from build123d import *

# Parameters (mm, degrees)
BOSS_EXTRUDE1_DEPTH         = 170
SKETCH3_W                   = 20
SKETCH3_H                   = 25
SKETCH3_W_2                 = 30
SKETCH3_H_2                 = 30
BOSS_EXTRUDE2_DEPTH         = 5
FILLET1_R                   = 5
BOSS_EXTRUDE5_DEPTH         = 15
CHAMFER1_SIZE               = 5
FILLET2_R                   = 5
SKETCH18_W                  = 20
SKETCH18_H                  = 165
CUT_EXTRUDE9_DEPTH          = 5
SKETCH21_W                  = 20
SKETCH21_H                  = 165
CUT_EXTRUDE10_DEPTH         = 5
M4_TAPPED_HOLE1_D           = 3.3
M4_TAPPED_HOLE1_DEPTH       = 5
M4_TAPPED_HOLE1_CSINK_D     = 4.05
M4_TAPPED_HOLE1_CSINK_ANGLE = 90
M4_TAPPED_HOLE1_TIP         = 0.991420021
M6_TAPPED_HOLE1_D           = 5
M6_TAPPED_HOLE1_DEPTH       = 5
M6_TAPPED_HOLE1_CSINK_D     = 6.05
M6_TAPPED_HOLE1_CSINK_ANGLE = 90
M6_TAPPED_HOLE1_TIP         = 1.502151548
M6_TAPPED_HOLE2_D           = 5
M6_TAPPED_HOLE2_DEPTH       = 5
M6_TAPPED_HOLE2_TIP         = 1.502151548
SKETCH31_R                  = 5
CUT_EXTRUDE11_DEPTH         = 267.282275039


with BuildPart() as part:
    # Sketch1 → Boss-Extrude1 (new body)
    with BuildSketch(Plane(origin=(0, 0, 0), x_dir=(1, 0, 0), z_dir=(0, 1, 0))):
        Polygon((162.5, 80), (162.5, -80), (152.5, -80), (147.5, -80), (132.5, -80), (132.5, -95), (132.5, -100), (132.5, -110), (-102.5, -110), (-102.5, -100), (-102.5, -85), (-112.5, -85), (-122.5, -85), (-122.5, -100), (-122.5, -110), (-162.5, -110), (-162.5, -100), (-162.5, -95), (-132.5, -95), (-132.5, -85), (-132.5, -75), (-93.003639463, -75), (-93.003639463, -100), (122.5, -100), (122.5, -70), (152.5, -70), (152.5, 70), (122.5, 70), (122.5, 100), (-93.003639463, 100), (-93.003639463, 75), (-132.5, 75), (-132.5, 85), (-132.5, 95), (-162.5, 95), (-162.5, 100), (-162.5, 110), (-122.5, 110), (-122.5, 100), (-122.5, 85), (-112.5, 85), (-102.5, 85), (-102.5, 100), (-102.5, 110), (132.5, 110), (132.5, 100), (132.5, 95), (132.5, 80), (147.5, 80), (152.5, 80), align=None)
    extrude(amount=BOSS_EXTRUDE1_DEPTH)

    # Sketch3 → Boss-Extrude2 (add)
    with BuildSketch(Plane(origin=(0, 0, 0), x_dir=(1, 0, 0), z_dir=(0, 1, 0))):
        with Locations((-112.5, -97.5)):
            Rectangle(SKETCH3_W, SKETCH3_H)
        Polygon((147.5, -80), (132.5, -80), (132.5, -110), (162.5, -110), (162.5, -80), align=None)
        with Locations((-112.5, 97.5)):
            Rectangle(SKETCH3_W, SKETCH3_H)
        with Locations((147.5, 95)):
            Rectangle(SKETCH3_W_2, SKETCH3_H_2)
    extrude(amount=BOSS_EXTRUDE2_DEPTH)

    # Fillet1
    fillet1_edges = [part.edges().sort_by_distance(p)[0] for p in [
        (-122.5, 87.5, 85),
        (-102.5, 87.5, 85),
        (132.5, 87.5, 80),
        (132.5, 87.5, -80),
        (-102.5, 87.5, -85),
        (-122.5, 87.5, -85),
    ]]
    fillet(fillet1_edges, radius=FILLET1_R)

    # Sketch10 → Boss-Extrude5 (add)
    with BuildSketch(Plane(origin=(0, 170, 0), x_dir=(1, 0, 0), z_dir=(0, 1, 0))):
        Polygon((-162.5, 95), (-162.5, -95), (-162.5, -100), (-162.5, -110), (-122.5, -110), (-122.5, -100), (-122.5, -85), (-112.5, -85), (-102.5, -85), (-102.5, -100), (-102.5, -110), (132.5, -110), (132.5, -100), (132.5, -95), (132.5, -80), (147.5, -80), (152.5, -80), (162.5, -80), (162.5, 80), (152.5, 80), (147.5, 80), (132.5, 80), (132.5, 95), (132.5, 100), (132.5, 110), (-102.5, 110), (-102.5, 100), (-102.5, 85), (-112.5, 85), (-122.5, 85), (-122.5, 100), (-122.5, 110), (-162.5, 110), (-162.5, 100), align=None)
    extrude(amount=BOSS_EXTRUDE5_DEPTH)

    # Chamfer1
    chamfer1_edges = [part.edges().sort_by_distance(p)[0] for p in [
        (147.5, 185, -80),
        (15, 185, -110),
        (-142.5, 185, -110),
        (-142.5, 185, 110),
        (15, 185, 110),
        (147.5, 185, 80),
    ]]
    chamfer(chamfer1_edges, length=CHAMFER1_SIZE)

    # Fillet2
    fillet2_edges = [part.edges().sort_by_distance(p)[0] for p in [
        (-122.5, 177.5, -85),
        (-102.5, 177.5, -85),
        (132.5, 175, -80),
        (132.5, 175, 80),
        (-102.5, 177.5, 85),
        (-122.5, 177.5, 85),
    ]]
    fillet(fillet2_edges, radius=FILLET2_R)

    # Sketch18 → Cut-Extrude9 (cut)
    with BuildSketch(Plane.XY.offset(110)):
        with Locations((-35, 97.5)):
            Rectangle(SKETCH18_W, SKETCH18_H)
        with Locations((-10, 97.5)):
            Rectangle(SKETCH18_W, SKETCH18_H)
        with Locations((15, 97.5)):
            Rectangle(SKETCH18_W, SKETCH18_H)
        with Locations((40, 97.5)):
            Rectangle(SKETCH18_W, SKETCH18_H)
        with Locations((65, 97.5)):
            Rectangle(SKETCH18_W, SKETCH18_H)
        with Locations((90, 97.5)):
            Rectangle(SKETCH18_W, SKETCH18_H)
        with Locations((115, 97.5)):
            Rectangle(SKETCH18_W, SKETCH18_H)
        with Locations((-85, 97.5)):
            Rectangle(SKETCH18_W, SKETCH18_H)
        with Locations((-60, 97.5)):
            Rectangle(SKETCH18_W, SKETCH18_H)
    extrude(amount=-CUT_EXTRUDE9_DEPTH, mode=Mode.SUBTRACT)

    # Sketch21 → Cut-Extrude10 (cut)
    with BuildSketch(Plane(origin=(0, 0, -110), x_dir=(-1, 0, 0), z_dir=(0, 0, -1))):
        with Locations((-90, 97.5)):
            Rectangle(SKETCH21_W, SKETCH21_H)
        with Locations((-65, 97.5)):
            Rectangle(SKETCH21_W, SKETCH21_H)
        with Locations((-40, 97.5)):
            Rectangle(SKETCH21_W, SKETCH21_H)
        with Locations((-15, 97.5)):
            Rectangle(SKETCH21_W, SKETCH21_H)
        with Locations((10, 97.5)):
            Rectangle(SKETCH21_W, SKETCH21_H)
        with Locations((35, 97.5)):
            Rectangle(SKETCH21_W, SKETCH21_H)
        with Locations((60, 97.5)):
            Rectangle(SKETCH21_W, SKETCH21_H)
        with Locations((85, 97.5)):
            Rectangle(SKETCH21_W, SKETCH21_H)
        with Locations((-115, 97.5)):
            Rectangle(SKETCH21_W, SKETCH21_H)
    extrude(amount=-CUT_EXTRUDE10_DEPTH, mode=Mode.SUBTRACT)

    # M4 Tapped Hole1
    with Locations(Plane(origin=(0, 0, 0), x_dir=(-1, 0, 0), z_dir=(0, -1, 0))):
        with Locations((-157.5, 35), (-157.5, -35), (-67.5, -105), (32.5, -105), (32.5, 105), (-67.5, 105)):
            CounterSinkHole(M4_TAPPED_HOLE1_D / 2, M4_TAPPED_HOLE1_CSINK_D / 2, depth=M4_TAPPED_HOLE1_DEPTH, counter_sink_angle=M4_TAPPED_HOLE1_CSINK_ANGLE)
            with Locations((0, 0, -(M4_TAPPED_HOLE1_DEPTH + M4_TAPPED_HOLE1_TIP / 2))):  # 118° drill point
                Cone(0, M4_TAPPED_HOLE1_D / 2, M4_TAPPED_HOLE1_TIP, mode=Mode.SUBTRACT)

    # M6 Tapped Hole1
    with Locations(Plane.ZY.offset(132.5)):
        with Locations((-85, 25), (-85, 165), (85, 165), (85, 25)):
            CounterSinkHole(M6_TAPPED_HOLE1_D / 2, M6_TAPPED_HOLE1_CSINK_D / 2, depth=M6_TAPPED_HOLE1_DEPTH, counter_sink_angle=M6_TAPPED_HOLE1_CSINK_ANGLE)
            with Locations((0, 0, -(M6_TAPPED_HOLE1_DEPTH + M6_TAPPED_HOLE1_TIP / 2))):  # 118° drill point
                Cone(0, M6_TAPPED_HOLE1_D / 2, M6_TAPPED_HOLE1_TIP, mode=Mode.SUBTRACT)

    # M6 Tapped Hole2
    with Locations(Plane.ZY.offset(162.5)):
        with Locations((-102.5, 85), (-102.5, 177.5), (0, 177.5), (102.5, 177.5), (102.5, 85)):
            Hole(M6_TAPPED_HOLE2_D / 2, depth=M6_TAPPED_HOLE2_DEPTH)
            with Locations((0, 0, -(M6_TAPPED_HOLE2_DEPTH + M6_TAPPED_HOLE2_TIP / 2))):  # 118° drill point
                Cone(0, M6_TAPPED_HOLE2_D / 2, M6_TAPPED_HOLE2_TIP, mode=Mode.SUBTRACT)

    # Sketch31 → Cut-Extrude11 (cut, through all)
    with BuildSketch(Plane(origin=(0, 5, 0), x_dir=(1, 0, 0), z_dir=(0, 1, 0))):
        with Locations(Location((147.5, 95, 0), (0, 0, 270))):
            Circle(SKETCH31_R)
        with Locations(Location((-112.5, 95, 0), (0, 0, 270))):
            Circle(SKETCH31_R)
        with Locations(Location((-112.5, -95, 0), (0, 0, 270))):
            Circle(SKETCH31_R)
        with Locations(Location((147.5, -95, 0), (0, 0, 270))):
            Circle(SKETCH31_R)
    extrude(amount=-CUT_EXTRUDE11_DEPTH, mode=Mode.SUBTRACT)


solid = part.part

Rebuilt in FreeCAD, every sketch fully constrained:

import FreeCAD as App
import Part
import Sketcher

V = App.Vector


def edges_at(feature, points):
    """Names of the edges that pass closest to the given points."""
    edges = feature.Shape.Edges
    near = lambda p: min(range(len(edges)), key=lambda i: edges[i].distToShape(Part.Vertex(*p))[0])
    return sorted({f"Edge{near(p) + 1}" for p in points})


def add_polygon(sketch, points):
    """Adds a closed chain of lines whose ends are joined by coincident constraints."""
    first, n = sketch.GeometryCount, len(points)
    for a, b in zip(points, points[1:] + points[:1]):
        sketch.addGeometry(Part.LineSegment(App.Vector(*a, 0), App.Vector(*b, 0)), False)
    for i in range(n):
        sketch.addConstraint(Sketcher.Constraint("Coincident", first + i, 2, first + (i + 1) % n, 1))

doc = App.newDocument("Part")
body = doc.addObject("PartDesign::Body", "Body")

sketch1 = body.newObject("Sketcher::SketchObject", "Sketch")
sketch1.AttachmentSupport = (doc.getObject("XZ_Plane"), [""])
sketch1.MapMode = "FlatFace"
add_polygon(sketch1, [(162, 80), (162, -80), (132, -80), (132, -110), (-102, -110), (-102, -85), (-122, -85), (-122, -110), (-162, -110), (-162, -95), (-132, -95), (-132, -75), (-93, -75), (-93, -100), (122, -100), (122, -70), (152, -70), (152, 70), (122, 70), (122, 100), (-93, 100), (-93, 75), (-132, 75), (-132, 95), (-162, 95), (-162, 110), (-122, 110), (-122, 85), (-102, 85), (-102, 110), (132, 110), (132, 80)])
sketch1.addConstraint(Sketcher.Constraint("Vertical", 0))
sketch1.addConstraint(Sketcher.Constraint("Horizontal", 1))
sketch1.addConstraint(Sketcher.Constraint("Vertical", 2))
sketch1.addConstraint(Sketcher.Constraint("Horizontal", 3))
sketch1.addConstraint(Sketcher.Constraint("Vertical", 4))
sketch1.addConstraint(Sketcher.Constraint("Horizontal", 5))
sketch1.addConstraint(Sketcher.Constraint("Vertical", 6))
sketch1.addConstraint(Sketcher.Constraint("Horizontal", 7))
sketch1.addConstraint(Sketcher.Constraint("Vertical", 8))
sketch1.addConstraint(Sketcher.Constraint("Horizontal", 9))
sketch1.addConstraint(Sketcher.Constraint("Vertical", 10))
sketch1.addConstraint(Sketcher.Constraint("Horizontal", 11))
sketch1.addConstraint(Sketcher.Constraint("Vertical", 12))
sketch1.addConstraint(Sketcher.Constraint("Horizontal", 13))
sketch1.addConstraint(Sketcher.Constraint("Vertical", 14))
sketch1.addConstraint(Sketcher.Constraint("Horizontal", 15))
sketch1.addConstraint(Sketcher.Constraint("Vertical", 16))
sketch1.addConstraint(Sketcher.Constraint("Horizontal", 17))
sketch1.addConstraint(Sketcher.Constraint("Vertical", 18))
sketch1.addConstraint(Sketcher.Constraint("Horizontal", 19))
sketch1.addConstraint(Sketcher.Constraint("Vertical", 20))
sketch1.addConstraint(Sketcher.Constraint("Horizontal", 21))
sketch1.addConstraint(Sketcher.Constraint("Vertical", 22))
sketch1.addConstraint(Sketcher.Constraint("Horizontal", 23))
sketch1.addConstraint(Sketcher.Constraint("Vertical", 24))
sketch1.addConstraint(Sketcher.Constraint("Horizontal", 25))
sketch1.addConstraint(Sketcher.Constraint("Vertical", 26))
sketch1.addConstraint(Sketcher.Constraint("Horizontal", 27))
sketch1.addConstraint(Sketcher.Constraint("Vertical", 28))
sketch1.addConstraint(Sketcher.Constraint("Horizontal", 29))
sketch1.addConstraint(Sketcher.Constraint("Vertical", 30))
sketch1.addConstraint(Sketcher.Constraint("Horizontal", 31))
sketch1.addConstraint(Sketcher.Constraint("Symmetric", 14, 2, 17, 2, -1))
sketch1.addConstraint(Sketcher.Constraint("Symmetric", 12, 2, 19, 2, -1))
sketch1.addConstraint(Sketcher.Constraint("Symmetric", 10, 2, 21, 2, -1))
sketch1.addConstraint(Sketcher.Constraint("Symmetric", 8, 2, 23, 2, -1))
sketch1.addConstraint(Sketcher.Constraint("Symmetric", 6, 2, 25, 2, -1))
sketch1.addConstraint(Sketcher.Constraint("Symmetric", 4, 2, 27, 2, -1))
sketch1.addConstraint(Sketcher.Constraint("Symmetric", 2, 2, 29, 2, -1))
sketch1.addConstraint(Sketcher.Constraint("Horizontal", 3, 2, 6, 2))
sketch1.addConstraint(Sketcher.Constraint("Equal", 1, 9))
sketch1.addConstraint(Sketcher.Constraint("Equal", 9, 15))
sketch1.addConstraint(Sketcher.Constraint("Equal", 31, 2))
sketch1.addConstraint(Sketcher.Constraint("Equal", 27, 10))
sketch1.addConstraint(Sketcher.Constraint("Equal", 6, 12))
sketch1.addConstraint(Sketcher.Constraint("Equal", 2, 14))
sketch1.addConstraint(Sketcher.Constraint("Equal", 18, 30))
sketch1.addConstraint(Sketcher.Constraint("DistanceX", 1, 2, 1, 1, 30.0))
sketch1.addConstraint(Sketcher.Constraint("DistanceX", 3, 2, 3, 1, 235.0))
sketch1.addConstraint(Sketcher.Constraint("DistanceX", 5, 2, 5, 1, 20.0))
sketch1.addConstraint(Sketcher.Constraint("DistanceX", 7, 2, 7, 1, 40.0))
sketch1.addConstraint(Sketcher.Constraint("DistanceY", 0, 2, 0, 1, 160.0))
sketch1.addConstraint(Sketcher.Constraint("DistanceY", 4, 1, 4, 2, 25.0))
sketch1.addConstraint(Sketcher.Constraint("DistanceY", 8, 1, 8, 2, 15.0))
sketch1.addConstraint(Sketcher.Constraint("DistanceX", 13, 2, 2, 2, 10.0))
sketch1.addConstraint(Sketcher.Constraint("DistanceX", -1, 1, 0, 2, 162.5))
sketch1.addConstraint(Sketcher.Constraint("DistanceX", 11, 1, 11, 2, 39.496361))
pad1 = body.newObject("PartDesign::Pad", "Pad")
pad1.Profile = sketch1
pad1.Length = 170
pad1.Reversed = True

sketch2 = body.newObject("Sketcher::SketchObject", "Sketch001")
sketch2.AttachmentSupport = (doc.getObject("XZ_Plane"), [""])
sketch2.MapMode = "FlatFace"
add_polygon(sketch2, [(-122, 85), (-122, 110), (-102, 110), (-102, 85)])
add_polygon(sketch2, [(132, 80), (132, 110), (162, 110), (162, 80)])
add_polygon(sketch2, [(-122, -110), (-122, -85), (-102, -85), (-102, -110)])
add_polygon(sketch2, [(132, -110), (132, -80), (162, -80), (162, -110)])
sketch2.addConstraint(Sketcher.Constraint("Vertical", 0))
sketch2.addConstraint(Sketcher.Constraint("Horizontal", 1))
sketch2.addConstraint(Sketcher.Constraint("Vertical", 2))
sketch2.addConstraint(Sketcher.Constraint("Horizontal", 3))
sketch2.addConstraint(Sketcher.Constraint("Vertical", 4))
sketch2.addConstraint(Sketcher.Constraint("Horizontal", 5))
sketch2.addConstraint(Sketcher.Constraint("Vertical", 6))
sketch2.addConstraint(Sketcher.Constraint("Horizontal", 7))
sketch2.addConstraint(Sketcher.Constraint("Vertical", 8))
sketch2.addConstraint(Sketcher.Constraint("Horizontal", 9))
sketch2.addConstraint(Sketcher.Constraint("Vertical", 10))
sketch2.addConstraint(Sketcher.Constraint("Horizontal", 11))
sketch2.addConstraint(Sketcher.Constraint("Vertical", 12))
sketch2.addConstraint(Sketcher.Constraint("Horizontal", 13))
sketch2.addConstraint(Sketcher.Constraint("Vertical", 14))
sketch2.addConstraint(Sketcher.Constraint("Horizontal", 15))
sketch2.addConstraint(Sketcher.Constraint("Symmetric", 3, 2, 8, 2, -1))
sketch2.addConstraint(Sketcher.Constraint("Symmetric", 1, 2, 10, 2, -1))
sketch2.addConstraint(Sketcher.Constraint("Symmetric", 7, 2, 12, 2, -1))
sketch2.addConstraint(Sketcher.Constraint("Symmetric", 5, 2, 14, 2, -1))
sketch2.addConstraint(Sketcher.Constraint("Horizontal", 1, 2, 4, 2))
sketch2.addConstraint(Sketcher.Constraint("Equal", 15, 4))
sketch2.addConstraint(Sketcher.Constraint("DistanceX", 1, 1, 1, 2, 20.0))
sketch2.addConstraint(Sketcher.Constraint("DistanceX", 5, 1, 5, 2, 30.0))
sketch2.addConstraint(Sketcher.Constraint("DistanceY", 0, 1, 0, 2, 25.0))
sketch2.addConstraint(Sketcher.Constraint("DistanceY", -1, 1, 0, 2, 110.0))
sketch2.addConstraint(Sketcher.Constraint("DistanceX", 1, 2, 4, 2, 235.0))
sketch2.addConstraint(Sketcher.Constraint("DistanceX", 0, 2, -1, 1, 122.5))
pad2 = body.newObject("PartDesign::Pad", "Pad001")
pad2.Profile = sketch2
pad2.Length = 5
pad2.Reversed = True
doc.recompute()

fillet = body.newObject("PartDesign::Fillet", "Fillet")
fillet.Base = (pad2, edges_at(pad2, [
    (-122.5, 87.5, 85),
    (-102.5, 87.5, 85),
    (132.5, 87.5, 80),
    (132.5, 87.5, -80),
    (-102.5, 87.5, -85),
    (-122.5, 87.5, -85),
]))
fillet.Radius = 5

sketch3 = body.newObject("Sketcher::SketchObject", "Sketch002")
sketch3.AttachmentSupport = (doc.getObject("XZ_Plane"), [""])
sketch3.MapMode = "FlatFace"
sketch3.AttachmentOffset = App.Placement(V(0, 0, -170), App.Rotation())
add_polygon(sketch3, [(-162, 110), (-122, 110), (-122, 85), (-102, 85), (-102, 110), (132, 110), (132, 80), (162, 80), (162, -80), (132, -80), (132, -110), (-102, -110), (-102, -85), (-122, -85), (-122, -110), (-162, -110)])
sketch3.addConstraint(Sketcher.Constraint("Horizontal", 0))
sketch3.addConstraint(Sketcher.Constraint("Vertical", 1))
sketch3.addConstraint(Sketcher.Constraint("Horizontal", 2))
sketch3.addConstraint(Sketcher.Constraint("Vertical", 3))
sketch3.addConstraint(Sketcher.Constraint("Horizontal", 4))
sketch3.addConstraint(Sketcher.Constraint("Vertical", 5))
sketch3.addConstraint(Sketcher.Constraint("Horizontal", 6))
sketch3.addConstraint(Sketcher.Constraint("Vertical", 7))
sketch3.addConstraint(Sketcher.Constraint("Horizontal", 8))
sketch3.addConstraint(Sketcher.Constraint("Vertical", 9))
sketch3.addConstraint(Sketcher.Constraint("Horizontal", 10))
sketch3.addConstraint(Sketcher.Constraint("Vertical", 11))
sketch3.addConstraint(Sketcher.Constraint("Horizontal", 12))
sketch3.addConstraint(Sketcher.Constraint("Vertical", 13))
sketch3.addConstraint(Sketcher.Constraint("Horizontal", 14))
sketch3.addConstraint(Sketcher.Constraint("Vertical", 15))
sketch3.addConstraint(Sketcher.Constraint("Symmetric", 5, 2, 8, 2, -1))
sketch3.addConstraint(Sketcher.Constraint("Symmetric", 3, 2, 10, 2, -1))
sketch3.addConstraint(Sketcher.Constraint("Symmetric", 1, 2, 12, 2, -1))
sketch3.addConstraint(Sketcher.Constraint("Horizontal", 0, 2, 3, 2))
sketch3.addConstraint(Sketcher.Constraint("Horizontal", 10, 2, 13, 2))
sketch3.addConstraint(Sketcher.Constraint("Equal", 8, 5))
sketch3.addConstraint(Sketcher.Constraint("DistanceX", 0, 1, 0, 2, 40.0))
sketch3.addConstraint(Sketcher.Constraint("DistanceX", 2, 1, 2, 2, 20.0))
sketch3.addConstraint(Sketcher.Constraint("DistanceX", 4, 1, 4, 2, 235.0))
sketch3.addConstraint(Sketcher.Constraint("DistanceX", 6, 1, 6, 2, 30.0))
sketch3.addConstraint(Sketcher.Constraint("DistanceY", 1, 2, 1, 1, 25.0))
sketch3.addConstraint(Sketcher.Constraint("DistanceY", 7, 2, 7, 1, 160.0))
sketch3.addConstraint(Sketcher.Constraint("DistanceX", 0, 2, -1, 1, 122.5))
pad3 = body.newObject("PartDesign::Pad", "Pad002")
pad3.Profile = sketch3
pad3.Length = 15
pad3.Reversed = True
doc.recompute()

chamfer = body.newObject("PartDesign::Chamfer", "Chamfer")
chamfer.Base = (pad3, edges_at(pad3, [
    (147.5, 185, -80),
    (15, 185, -110),
    (-142.5, 185, -110),
    (-142.5, 185, 110),
    (15, 185, 110),
    (147.5, 185, 80),
]))
chamfer.Size = 5
doc.recompute()

fillet2 = body.newObject("PartDesign::Fillet", "Fillet001")
fillet2.Base = (chamfer, edges_at(chamfer, [
    (-122.5, 177.5, -85),
    (-102.5, 177.5, -85),
    (132.5, 175, -80),
    (132.5, 175, 80),
    (-102.5, 177.5, 85),
    (-122.5, 177.5, 85),
]))
fillet2.Radius = 5

sketch4 = body.newObject("Sketcher::SketchObject", "Sketch003")
sketch4.AttachmentSupport = (doc.getObject("XY_Plane"), [""])
sketch4.MapMode = "FlatFace"
sketch4.AttachmentOffset = App.Placement(V(0, 0, 110), App.Rotation())
add_polygon(sketch4, [(-45, 180), (-45, 15), (-25, 15), (-25, 180)])
add_polygon(sketch4, [(-20, 180), (-20, 15), (0, 15), (0, 180)])
add_polygon(sketch4, [(5, 180), (5, 15), (25, 15), (25, 180)])
add_polygon(sketch4, [(30, 180), (30, 15), (50, 15), (50, 180)])
add_polygon(sketch4, [(55, 180), (55, 15), (75, 15), (75, 180)])
add_polygon(sketch4, [(80, 180), (80, 15), (100, 15), (100, 180)])
add_polygon(sketch4, [(105, 180), (105, 15), (125, 15), (125, 180)])
add_polygon(sketch4, [(-95, 180), (-95, 15), (-75, 15), (-75, 180)])
add_polygon(sketch4, [(-70, 180), (-70, 15), (-50, 15), (-50, 180)])
sketch4.addConstraint(Sketcher.Constraint("Vertical", 0))
sketch4.addConstraint(Sketcher.Constraint("Horizontal", 1))
sketch4.addConstraint(Sketcher.Constraint("Vertical", 2))
sketch4.addConstraint(Sketcher.Constraint("Horizontal", 3))
sketch4.addConstraint(Sketcher.Constraint("Vertical", 4))
sketch4.addConstraint(Sketcher.Constraint("Horizontal", 5))
sketch4.addConstraint(Sketcher.Constraint("Vertical", 6))
sketch4.addConstraint(Sketcher.Constraint("Horizontal", 7))
sketch4.addConstraint(Sketcher.Constraint("Vertical", 8))
sketch4.addConstraint(Sketcher.Constraint("Horizontal", 9))
sketch4.addConstraint(Sketcher.Constraint("Vertical", 10))
sketch4.addConstraint(Sketcher.Constraint("Horizontal", 11))
sketch4.addConstraint(Sketcher.Constraint("Vertical", 12))
sketch4.addConstraint(Sketcher.Constraint("Horizontal", 13))
sketch4.addConstraint(Sketcher.Constraint("Vertical", 14))
sketch4.addConstraint(Sketcher.Constraint("Horizontal", 15))
sketch4.addConstraint(Sketcher.Constraint("Vertical", 16))
sketch4.addConstraint(Sketcher.Constraint("Horizontal", 17))
sketch4.addConstraint(Sketcher.Constraint("Vertical", 18))
sketch4.addConstraint(Sketcher.Constraint("Horizontal", 19))
sketch4.addConstraint(Sketcher.Constraint("Vertical", 20))
sketch4.addConstraint(Sketcher.Constraint("Horizontal", 21))
sketch4.addConstraint(Sketcher.Constraint("Vertical", 22))
sketch4.addConstraint(Sketcher.Constraint("Horizontal", 23))
sketch4.addConstraint(Sketcher.Constraint("Vertical", 24))
sketch4.addConstraint(Sketcher.Constraint("Horizontal", 25))
sketch4.addConstraint(Sketcher.Constraint("Vertical", 26))
sketch4.addConstraint(Sketcher.Constraint("Horizontal", 27))
sketch4.addConstraint(Sketcher.Constraint("Vertical", 28))
sketch4.addConstraint(Sketcher.Constraint("Horizontal", 29))
sketch4.addConstraint(Sketcher.Constraint("Vertical", 30))
sketch4.addConstraint(Sketcher.Constraint("Horizontal", 31))
sketch4.addConstraint(Sketcher.Constraint("Vertical", 32))
sketch4.addConstraint(Sketcher.Constraint("Horizontal", 33))
sketch4.addConstraint(Sketcher.Constraint("Vertical", 34))
sketch4.addConstraint(Sketcher.Constraint("Horizontal", 35))
sketch4.addConstraint(Sketcher.Constraint("Symmetric", 1, 2, 9, 2, -2))
sketch4.addConstraint(Sketcher.Constraint("Symmetric", 17, 2, 29, 2, -2))
sketch4.addConstraint(Sketcher.Constraint("Symmetric", 13, 2, 33, 2, -2))
sketch4.addConstraint(Sketcher.Constraint("PointOnObject", 5, 2, -2))
sketch4.addConstraint(Sketcher.Constraint("Horizontal", 1, 2, 4, 2))
sketch4.addConstraint(Sketcher.Constraint("Horizontal", 3, 2, 6, 2))
sketch4.addConstraint(Sketcher.Constraint("Horizontal", 7, 2, 10, 2))
sketch4.addConstraint(Sketcher.Constraint("Horizontal", 9, 2, 12, 2))
sketch4.addConstraint(Sketcher.Constraint("Horizontal", 11, 2, 14, 2))
sketch4.addConstraint(Sketcher.Constraint("Horizontal", 13, 2, 16, 2))
sketch4.addConstraint(Sketcher.Constraint("Horizontal", 15, 2, 18, 2))
sketch4.addConstraint(Sketcher.Constraint("Horizontal", 17, 2, 20, 2))
sketch4.addConstraint(Sketcher.Constraint("Horizontal", 19, 2, 22, 2))
sketch4.addConstraint(Sketcher.Constraint("Horizontal", 21, 2, 24, 2))
sketch4.addConstraint(Sketcher.Constraint("Horizontal", 23, 2, 26, 2))
sketch4.addConstraint(Sketcher.Constraint("Horizontal", 27, 2, 30, 2))
sketch4.addConstraint(Sketcher.Constraint("Horizontal", 31, 2, 34, 2))
sketch4.addConstraint(Sketcher.Constraint("Equal", 3, 5))
sketch4.addConstraint(Sketcher.Constraint("Equal", 7, 9))
sketch4.addConstraint(Sketcher.Constraint("Equal", 11, 13))
sketch4.addConstraint(Sketcher.Constraint("Equal", 15, 17))
sketch4.addConstraint(Sketcher.Constraint("Equal", 19, 21))
sketch4.addConstraint(Sketcher.Constraint("Equal", 23, 25))
sketch4.addConstraint(Sketcher.Constraint("Equal", 27, 29))
sketch4.addConstraint(Sketcher.Constraint("Equal", 31, 33))
sketch4.addConstraint(Sketcher.Constraint("DistanceX", 1, 1, 1, 2, 20.0))
sketch4.addConstraint(Sketcher.Constraint("DistanceY", 0, 2, 0, 1, 165.0))
sketch4.addConstraint(Sketcher.Constraint("DistanceX", 0, 2, -1, 1, 45.0))
sketch4.addConstraint(Sketcher.Constraint("DistanceY", -1, 1, 0, 2, 15.0))
sketch4.addConstraint(Sketcher.Constraint("DistanceX", -1, 1, 12, 2, 30.0))
sketch4.addConstraint(Sketcher.Constraint("DistanceX", -1, 1, 16, 2, 55.0))
sketch4.addConstraint(Sketcher.Constraint("DistanceX", -1, 1, 20, 2, 80.0))
sketch4.addConstraint(Sketcher.Constraint("DistanceX", -1, 1, 24, 2, 105.0))
pocket1 = body.newObject("PartDesign::Pocket", "Pocket")
pocket1.Profile = sketch4
pocket1.Length = 5

sketch5 = body.newObject("Sketcher::SketchObject", "Sketch004")
sketch5.AttachmentSupport = (doc.getObject("XY_Plane"), [""])
sketch5.MapMode = "FlatFace"
sketch5.AttachmentOffset = App.Placement(V(0, 0, -110), App.Rotation())
add_polygon(sketch5, [(100, 180), (100, 15), (80, 15), (80, 180)])
add_polygon(sketch5, [(75, 180), (75, 15), (55, 15), (55, 180)])
add_polygon(sketch5, [(50, 180), (50, 15), (30, 15), (30, 180)])
add_polygon(sketch5, [(25, 180), (25, 15), (5, 15), (5, 180)])
add_polygon(sketch5, [(0, 180), (0, 15), (-20, 15), (-20, 180)])
add_polygon(sketch5, [(-25, 180), (-25, 15), (-45, 15), (-45, 180)])
add_polygon(sketch5, [(-50, 180), (-50, 15), (-70, 15), (-70, 180)])
add_polygon(sketch5, [(-75, 180), (-75, 15), (-95, 15), (-95, 180)])
add_polygon(sketch5, [(125, 180), (125, 15), (105, 15), (105, 180)])
sketch5.addConstraint(Sketcher.Constraint("Vertical", 0))
sketch5.addConstraint(Sketcher.Constraint("Horizontal", 1))
sketch5.addConstraint(Sketcher.Constraint("Vertical", 2))
sketch5.addConstraint(Sketcher.Constraint("Horizontal", 3))
sketch5.addConstraint(Sketcher.Constraint("Vertical", 4))
sketch5.addConstraint(Sketcher.Constraint("Horizontal", 5))
sketch5.addConstraint(Sketcher.Constraint("Vertical", 6))
sketch5.addConstraint(Sketcher.Constraint("Horizontal", 7))
sketch5.addConstraint(Sketcher.Constraint("Vertical", 8))
sketch5.addConstraint(Sketcher.Constraint("Horizontal", 9))
sketch5.addConstraint(Sketcher.Constraint("Vertical", 10))
sketch5.addConstraint(Sketcher.Constraint("Horizontal", 11))
sketch5.addConstraint(Sketcher.Constraint("Vertical", 12))
sketch5.addConstraint(Sketcher.Constraint("Horizontal", 13))
sketch5.addConstraint(Sketcher.Constraint("Vertical", 14))
sketch5.addConstraint(Sketcher.Constraint("Horizontal", 15))
sketch5.addConstraint(Sketcher.Constraint("Vertical", 16))
sketch5.addConstraint(Sketcher.Constraint("Horizontal", 17))
sketch5.addConstraint(Sketcher.Constraint("Vertical", 18))
sketch5.addConstraint(Sketcher.Constraint("Horizontal", 19))
sketch5.addConstraint(Sketcher.Constraint("Vertical", 20))
sketch5.addConstraint(Sketcher.Constraint("Horizontal", 21))
sketch5.addConstraint(Sketcher.Constraint("Vertical", 22))
sketch5.addConstraint(Sketcher.Constraint("Horizontal", 23))
sketch5.addConstraint(Sketcher.Constraint("Vertical", 24))
sketch5.addConstraint(Sketcher.Constraint("Horizontal", 25))
sketch5.addConstraint(Sketcher.Constraint("Vertical", 26))
sketch5.addConstraint(Sketcher.Constraint("Horizontal", 27))
sketch5.addConstraint(Sketcher.Constraint("Vertical", 28))
sketch5.addConstraint(Sketcher.Constraint("Horizontal", 29))
sketch5.addConstraint(Sketcher.Constraint("Vertical", 30))
sketch5.addConstraint(Sketcher.Constraint("Horizontal", 31))
sketch5.addConstraint(Sketcher.Constraint("Vertical", 32))
sketch5.addConstraint(Sketcher.Constraint("Horizontal", 33))
sketch5.addConstraint(Sketcher.Constraint("Vertical", 34))
sketch5.addConstraint(Sketcher.Constraint("Horizontal", 35))
sketch5.addConstraint(Sketcher.Constraint("Symmetric", 12, 2, 20, 2, -2))
sketch5.addConstraint(Sketcher.Constraint("Symmetric", 8, 2, 24, 2, -2))
sketch5.addConstraint(Sketcher.Constraint("Symmetric", 4, 2, 28, 2, -2))
sketch5.addConstraint(Sketcher.Constraint("PointOnObject", 16, 2, -2))
sketch5.addConstraint(Sketcher.Constraint("Horizontal", 1, 2, 4, 2))
sketch5.addConstraint(Sketcher.Constraint("Horizontal", 3, 2, 6, 2))
sketch5.addConstraint(Sketcher.Constraint("Horizontal", 5, 2, 8, 2))
sketch5.addConstraint(Sketcher.Constraint("Horizontal", 7, 2, 10, 2))
sketch5.addConstraint(Sketcher.Constraint("Horizontal", 9, 2, 12, 2))
sketch5.addConstraint(Sketcher.Constraint("Horizontal", 11, 2, 14, 2))
sketch5.addConstraint(Sketcher.Constraint("Horizontal", 13, 2, 16, 2))
sketch5.addConstraint(Sketcher.Constraint("Horizontal", 15, 2, 18, 2))
sketch5.addConstraint(Sketcher.Constraint("Horizontal", 19, 2, 22, 2))
sketch5.addConstraint(Sketcher.Constraint("Horizontal", 23, 2, 26, 2))
sketch5.addConstraint(Sketcher.Constraint("Horizontal", 27, 2, 30, 2))
sketch5.addConstraint(Sketcher.Constraint("Horizontal", 29, 2, 32, 2))
sketch5.addConstraint(Sketcher.Constraint("Horizontal", 31, 2, 34, 2))
sketch5.addConstraint(Sketcher.Constraint("Equal", 3, 5))
sketch5.addConstraint(Sketcher.Constraint("Equal", 7, 9))
sketch5.addConstraint(Sketcher.Constraint("Equal", 11, 13))
sketch5.addConstraint(Sketcher.Constraint("Equal", 15, 17))
sketch5.addConstraint(Sketcher.Constraint("Equal", 19, 21))
sketch5.addConstraint(Sketcher.Constraint("Equal", 23, 25))
sketch5.addConstraint(Sketcher.Constraint("Equal", 27, 29))
sketch5.addConstraint(Sketcher.Constraint("Equal", 31, 33))
sketch5.addConstraint(Sketcher.Constraint("DistanceX", 1, 2, 1, 1, 20.0))
sketch5.addConstraint(Sketcher.Constraint("DistanceY", 0, 2, 0, 1, 165.0))
sketch5.addConstraint(Sketcher.Constraint("DistanceX", -1, 1, 0, 2, 100.0))
sketch5.addConstraint(Sketcher.Constraint("DistanceY", -1, 1, 0, 2, 15.0))
sketch5.addConstraint(Sketcher.Constraint("DistanceX", -1, 1, 4, 2, 75.0))
sketch5.addConstraint(Sketcher.Constraint("DistanceX", -1, 1, 8, 2, 50.0))
sketch5.addConstraint(Sketcher.Constraint("DistanceX", -1, 1, 12, 2, 25.0))
sketch5.addConstraint(Sketcher.Constraint("DistanceX", -1, 1, 32, 2, 125.0))
pocket2 = body.newObject("PartDesign::Pocket", "Pocket001")
pocket2.Profile = sketch5
pocket2.Length = 5
pocket2.Reversed = True

sketch6 = body.newObject("Sketcher::SketchObject", "Sketch005")
sketch6.AttachmentSupport = (doc.getObject("XZ_Plane"), [""])
sketch6.MapMode = "FlatFace"
sketch6.addGeometry(Part.Circle(V(157.5, -35, 0), V(0, 0, 1), 1.6), False)
sketch6.addGeometry(Part.Circle(V(157.5, 35, 0), V(0, 0, 1), 1.6), False)
sketch6.addGeometry(Part.Circle(V(67.5, 105, 0), V(0, 0, 1), 1.6), False)
sketch6.addGeometry(Part.Circle(V(-32.5, 105, 0), V(0, 0, 1), 1.6), False)
sketch6.addGeometry(Part.Circle(V(-32.5, -105, 0), V(0, 0, 1), 1.6), False)
sketch6.addGeometry(Part.Circle(V(67.5, -105, 0), V(0, 0, 1), 1.6), False)
sketch6.addConstraint(Sketcher.Constraint("Equal", 0, 1))
sketch6.addConstraint(Sketcher.Constraint("Equal", 1, 2))
sketch6.addConstraint(Sketcher.Constraint("Equal", 2, 3))
sketch6.addConstraint(Sketcher.Constraint("Equal", 3, 4))
sketch6.addConstraint(Sketcher.Constraint("Equal", 4, 5))
sketch6.addConstraint(Sketcher.Constraint("Symmetric", 0, 3, 1, 3, -1))
sketch6.addConstraint(Sketcher.Constraint("Symmetric", 3, 3, 4, 3, -1))
sketch6.addConstraint(Sketcher.Constraint("Symmetric", 2, 3, 5, 3, -1))
sketch6.addConstraint(Sketcher.Constraint("Horizontal", 2, 3, 3, 3))
sketch6.addConstraint(Sketcher.Constraint("Diameter", 0, 3.3))
sketch6.addConstraint(Sketcher.Constraint("DistanceY", 0, 3, -1, 1, 35.0))
sketch6.addConstraint(Sketcher.Constraint("DistanceY", -1, 1, 2, 3, 105.0))
sketch6.addConstraint(Sketcher.Constraint("DistanceX", 2, 3, 1, 3, 90.0))
sketch6.addConstraint(Sketcher.Constraint("DistanceX", 3, 3, 2, 3, 100.0))
sketch6.addConstraint(Sketcher.Constraint("DistanceX", -1, 1, 0, 3, 157.5))
doc.recompute()
hole = body.newObject("PartDesign::Hole", "Hole")
hole.Profile = sketch6
hole.ThreadType = "None"
hole.Diameter = 3.3
hole.DepthType = "Dimension"
hole.Depth = 5
hole.DrillPoint = "Angled"
hole.DrillPointAngle = 118
hole.HoleCutType = "Countersink"
hole.HoleCutDiameter = 4.05
hole.HoleCutCountersinkAngle = 90

sketch7 = body.newObject("Sketcher::SketchObject", "Sketch006")
sketch7.AttachmentSupport = (doc.getObject("YZ_Plane"), [""])
sketch7.MapMode = "FlatFace"
sketch7.AttachmentOffset = App.Placement(V(0, 0, -132.5), App.Rotation())
sketch7.addGeometry(Part.Circle(V(25, -85, 0), V(0, 0, 1), 2.5), False)
sketch7.addGeometry(Part.Circle(V(165, -85, 0), V(0, 0, 1), 2.5), False)
sketch7.addGeometry(Part.Circle(V(165, 85, 0), V(0, 0, 1), 2.5), False)
sketch7.addGeometry(Part.Circle(V(25, 85, 0), V(0, 0, 1), 2.5), False)
sketch7.addConstraint(Sketcher.Constraint("Equal", 0, 1))
sketch7.addConstraint(Sketcher.Constraint("Equal", 1, 2))
sketch7.addConstraint(Sketcher.Constraint("Equal", 2, 3))
sketch7.addConstraint(Sketcher.Constraint("Symmetric", 1, 3, 2, 3, -1))
sketch7.addConstraint(Sketcher.Constraint("Symmetric", 0, 3, 3, 3, -1))
sketch7.addConstraint(Sketcher.Constraint("Horizontal", 0, 3, 1, 3))
sketch7.addConstraint(Sketcher.Constraint("Diameter", 0, 5.0))
sketch7.addConstraint(Sketcher.Constraint("DistanceX", -1, 1, 0, 3, 25.0))
sketch7.addConstraint(Sketcher.Constraint("DistanceY", 0, 3, -1, 1, 85.0))
sketch7.addConstraint(Sketcher.Constraint("DistanceX", -1, 1, 1, 3, 165.0))
doc.recompute()
hole2 = body.newObject("PartDesign::Hole", "Hole001")
hole2.Profile = sketch7
hole2.ThreadType = "None"
hole2.Diameter = 5
hole2.DepthType = "Dimension"
hole2.Depth = 5
hole2.DrillPoint = "Angled"
hole2.DrillPointAngle = 118
hole2.HoleCutType = "Countersink"
hole2.HoleCutDiameter = 6.05
hole2.HoleCutCountersinkAngle = 90
hole2.Reversed = True

sketch8 = body.newObject("Sketcher::SketchObject", "Sketch007")
sketch8.AttachmentSupport = (doc.getObject("YZ_Plane"), [""])
sketch8.MapMode = "FlatFace"
sketch8.AttachmentOffset = App.Placement(V(0, 0, -162.5), App.Rotation())
sketch8.addGeometry(Part.Circle(V(85, -102.5, 0), V(0, 0, 1), 2.5), False)
sketch8.addGeometry(Part.Circle(V(177.5, -102.5, 0), V(0, 0, 1), 2.5), False)
sketch8.addGeometry(Part.Circle(V(177.5, 0, 0), V(0, 0, 1), 2.5), False)
sketch8.addGeometry(Part.Circle(V(177.5, 102.5, 0), V(0, 0, 1), 2.5), False)
sketch8.addGeometry(Part.Circle(V(85, 102.5, 0), V(0, 0, 1), 2.5), False)
sketch8.addConstraint(Sketcher.Constraint("Equal", 0, 1))
sketch8.addConstraint(Sketcher.Constraint("Equal", 1, 2))
sketch8.addConstraint(Sketcher.Constraint("Equal", 2, 3))
sketch8.addConstraint(Sketcher.Constraint("Equal", 3, 4))
sketch8.addConstraint(Sketcher.Constraint("Symmetric", 1, 3, 3, 3, -1))
sketch8.addConstraint(Sketcher.Constraint("Symmetric", 0, 3, 4, 3, -1))
sketch8.addConstraint(Sketcher.Constraint("PointOnObject", 2, 3, -1))
sketch8.addConstraint(Sketcher.Constraint("Horizontal", 0, 3, 1, 3))
sketch8.addConstraint(Sketcher.Constraint("Vertical", 1, 3, 2, 3))
sketch8.addConstraint(Sketcher.Constraint("Diameter", 0, 5.0))
sketch8.addConstraint(Sketcher.Constraint("DistanceX", -1, 1, 0, 3, 85.0))
sketch8.addConstraint(Sketcher.Constraint("DistanceY", 1, 3, 3, 3, 205.0))
sketch8.addConstraint(Sketcher.Constraint("DistanceX", -1, 1, 1, 3, 177.5))
doc.recompute()
hole3 = body.newObject("PartDesign::Hole", "Hole002")
hole3.Profile = sketch8
hole3.ThreadType = "None"
hole3.Diameter = 5
hole3.DepthType = "Dimension"
hole3.Depth = 5
hole3.DrillPoint = "Angled"
hole3.DrillPointAngle = 118
hole3.Reversed = True

sketch9 = body.newObject("Sketcher::SketchObject", "Sketch008")
sketch9.AttachmentSupport = (doc.getObject("XZ_Plane"), [""])
sketch9.MapMode = "FlatFace"
sketch9.AttachmentOffset = App.Placement(V(0, 0, -5), App.Rotation())
sketch9.addGeometry(Part.Circle(V(148, -95, 0), V(0, 0, 1), 5), False)
sketch9.addGeometry(Part.Circle(V(-112, -95, 0), V(0, 0, 1), 5), False)
sketch9.addGeometry(Part.Circle(V(-112, 95, 0), V(0, 0, 1), 5), False)
sketch9.addGeometry(Part.Circle(V(148, 95, 0), V(0, 0, 1), 5), False)
sketch9.addConstraint(Sketcher.Constraint("Equal", 0, 1))
sketch9.addConstraint(Sketcher.Constraint("Equal", 1, 2))
sketch9.addConstraint(Sketcher.Constraint("Equal", 2, 3))
sketch9.addConstraint(Sketcher.Constraint("Symmetric", 1, 3, 2, 3, -1))
sketch9.addConstraint(Sketcher.Constraint("Symmetric", 0, 3, 3, 3, -1))
sketch9.addConstraint(Sketcher.Constraint("Horizontal", 0, 3, 1, 3))
sketch9.addConstraint(Sketcher.Constraint("Diameter", 0, 10.0))
sketch9.addConstraint(Sketcher.Constraint("DistanceY", 0, 3, -1, 1, 95.0))
sketch9.addConstraint(Sketcher.Constraint("DistanceX", 1, 3, 0, 3, 260.0))
sketch9.addConstraint(Sketcher.Constraint("DistanceX", -1, 1, 0, 3, 147.5))
pocket3 = body.newObject("PartDesign::Pocket", "Pocket002")
pocket3.Profile = sketch9
pocket3.Type = "ThroughAll"
pocket3.Reversed = True

doc.recompute()
